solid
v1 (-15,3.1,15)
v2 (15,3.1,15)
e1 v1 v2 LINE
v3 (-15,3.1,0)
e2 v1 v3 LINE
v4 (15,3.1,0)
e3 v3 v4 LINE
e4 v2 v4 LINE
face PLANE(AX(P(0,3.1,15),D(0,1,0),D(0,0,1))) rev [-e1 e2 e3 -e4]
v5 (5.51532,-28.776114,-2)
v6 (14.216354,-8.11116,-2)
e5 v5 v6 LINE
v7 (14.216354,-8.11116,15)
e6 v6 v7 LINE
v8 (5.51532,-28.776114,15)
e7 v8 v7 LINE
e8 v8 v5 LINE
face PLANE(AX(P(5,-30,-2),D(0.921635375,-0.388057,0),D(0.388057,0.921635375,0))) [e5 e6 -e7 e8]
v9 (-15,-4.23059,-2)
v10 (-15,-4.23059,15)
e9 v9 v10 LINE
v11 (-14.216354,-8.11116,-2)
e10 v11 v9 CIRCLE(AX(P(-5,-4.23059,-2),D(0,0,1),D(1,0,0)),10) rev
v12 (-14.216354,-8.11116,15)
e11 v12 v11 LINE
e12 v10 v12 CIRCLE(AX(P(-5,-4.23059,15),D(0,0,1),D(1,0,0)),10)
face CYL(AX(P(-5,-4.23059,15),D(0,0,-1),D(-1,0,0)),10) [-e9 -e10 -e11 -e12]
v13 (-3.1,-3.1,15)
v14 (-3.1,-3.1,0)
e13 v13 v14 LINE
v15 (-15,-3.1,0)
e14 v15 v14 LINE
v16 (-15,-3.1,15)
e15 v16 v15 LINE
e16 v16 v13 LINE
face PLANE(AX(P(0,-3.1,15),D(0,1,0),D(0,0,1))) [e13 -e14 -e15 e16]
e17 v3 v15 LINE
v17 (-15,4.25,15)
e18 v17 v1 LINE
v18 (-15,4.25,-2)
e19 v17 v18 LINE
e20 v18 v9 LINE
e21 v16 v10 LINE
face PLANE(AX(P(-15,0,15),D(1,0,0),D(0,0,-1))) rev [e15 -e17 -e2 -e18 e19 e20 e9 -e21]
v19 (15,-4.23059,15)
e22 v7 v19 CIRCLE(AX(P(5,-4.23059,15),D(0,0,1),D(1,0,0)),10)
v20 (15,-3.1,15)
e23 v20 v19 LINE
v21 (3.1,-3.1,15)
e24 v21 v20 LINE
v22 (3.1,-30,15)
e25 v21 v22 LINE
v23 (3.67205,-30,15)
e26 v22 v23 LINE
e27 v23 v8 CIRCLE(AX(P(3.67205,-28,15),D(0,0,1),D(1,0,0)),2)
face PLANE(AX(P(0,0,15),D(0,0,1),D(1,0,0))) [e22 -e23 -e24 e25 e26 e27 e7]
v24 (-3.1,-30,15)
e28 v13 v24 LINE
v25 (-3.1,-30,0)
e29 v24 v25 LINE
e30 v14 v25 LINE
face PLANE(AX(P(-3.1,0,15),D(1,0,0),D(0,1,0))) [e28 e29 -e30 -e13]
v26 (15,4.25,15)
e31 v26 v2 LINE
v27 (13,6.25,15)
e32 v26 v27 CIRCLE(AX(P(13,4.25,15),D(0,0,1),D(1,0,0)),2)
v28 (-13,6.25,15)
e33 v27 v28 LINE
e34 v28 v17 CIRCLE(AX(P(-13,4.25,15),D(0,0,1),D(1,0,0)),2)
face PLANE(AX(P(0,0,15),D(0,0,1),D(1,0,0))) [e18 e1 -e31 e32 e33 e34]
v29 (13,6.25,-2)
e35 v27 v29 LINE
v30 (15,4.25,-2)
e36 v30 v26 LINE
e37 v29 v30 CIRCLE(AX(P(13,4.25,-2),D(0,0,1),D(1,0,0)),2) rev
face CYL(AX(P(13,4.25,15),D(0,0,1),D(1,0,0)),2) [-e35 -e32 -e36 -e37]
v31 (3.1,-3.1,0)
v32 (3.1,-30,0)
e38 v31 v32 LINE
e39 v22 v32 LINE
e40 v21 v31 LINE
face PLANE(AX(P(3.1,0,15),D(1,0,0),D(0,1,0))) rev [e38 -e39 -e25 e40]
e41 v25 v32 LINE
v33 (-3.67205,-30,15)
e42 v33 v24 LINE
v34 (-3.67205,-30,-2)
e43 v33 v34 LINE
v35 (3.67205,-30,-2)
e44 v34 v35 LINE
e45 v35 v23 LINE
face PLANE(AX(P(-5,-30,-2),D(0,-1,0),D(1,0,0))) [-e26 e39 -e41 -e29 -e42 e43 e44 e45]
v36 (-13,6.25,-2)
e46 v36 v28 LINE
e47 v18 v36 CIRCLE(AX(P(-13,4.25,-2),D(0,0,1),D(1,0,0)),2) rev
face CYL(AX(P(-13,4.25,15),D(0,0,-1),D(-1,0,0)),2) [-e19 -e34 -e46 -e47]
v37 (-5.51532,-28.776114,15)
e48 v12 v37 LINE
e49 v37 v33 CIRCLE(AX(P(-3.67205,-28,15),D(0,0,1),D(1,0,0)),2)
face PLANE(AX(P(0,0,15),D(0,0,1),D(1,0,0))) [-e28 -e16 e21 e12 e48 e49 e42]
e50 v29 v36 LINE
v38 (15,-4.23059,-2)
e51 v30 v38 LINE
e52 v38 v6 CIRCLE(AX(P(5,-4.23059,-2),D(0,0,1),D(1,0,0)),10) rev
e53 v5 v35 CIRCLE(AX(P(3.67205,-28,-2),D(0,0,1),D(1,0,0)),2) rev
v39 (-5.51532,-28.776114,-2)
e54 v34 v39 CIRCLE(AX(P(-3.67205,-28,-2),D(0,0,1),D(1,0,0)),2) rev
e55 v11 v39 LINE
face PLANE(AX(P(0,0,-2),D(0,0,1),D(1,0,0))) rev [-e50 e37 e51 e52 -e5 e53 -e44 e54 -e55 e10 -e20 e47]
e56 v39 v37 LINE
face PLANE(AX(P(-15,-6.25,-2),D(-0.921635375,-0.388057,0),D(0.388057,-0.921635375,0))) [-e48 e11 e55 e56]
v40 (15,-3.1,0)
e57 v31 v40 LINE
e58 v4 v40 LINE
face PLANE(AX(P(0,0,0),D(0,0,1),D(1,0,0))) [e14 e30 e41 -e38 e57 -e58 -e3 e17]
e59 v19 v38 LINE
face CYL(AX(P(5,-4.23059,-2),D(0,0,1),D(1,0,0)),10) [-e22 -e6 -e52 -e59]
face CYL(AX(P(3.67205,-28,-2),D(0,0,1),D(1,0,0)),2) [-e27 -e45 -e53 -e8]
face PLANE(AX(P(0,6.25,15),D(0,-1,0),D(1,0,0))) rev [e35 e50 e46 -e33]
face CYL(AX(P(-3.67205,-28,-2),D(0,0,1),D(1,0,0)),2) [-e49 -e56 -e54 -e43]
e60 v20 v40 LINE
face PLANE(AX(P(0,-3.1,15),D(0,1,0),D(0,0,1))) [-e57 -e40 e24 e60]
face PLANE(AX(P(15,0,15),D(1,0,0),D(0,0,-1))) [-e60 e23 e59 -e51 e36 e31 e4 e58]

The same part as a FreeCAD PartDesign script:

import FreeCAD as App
import Part
import Sketcher
Q = App.Units.Quantity


def edges_at(feature, points):
    """Names of the edges that pass closest to the given points."""
    edges = feature.Shape.Edges
    near = lambda p: min(range(len(edges)), key=lambda i: edges[i].distToShape(Part.Vertex(*p))[0])
    return sorted({f"Edge{near(p) + 1}" for p in points})


def add_polygon(sketch, points):
    """Adds a closed chain of lines whose ends are joined by coincident constraints."""
    first, n = sketch.GeometryCount, len(points)
    for a, b in zip(points, points[1:] + points[:1]):
        sketch.addGeometry(Part.LineSegment(App.Vector(*a, 0), App.Vector(*b, 0)), False)
    for i in range(n):
        sketch.addConstraint(Sketcher.Constraint("Coincident", first + i, 2, first + (i + 1) % n, 1))

doc = App.newDocument("Part")
body = doc.addObject("PartDesign::Body", "Body")

sketch1 = body.newObject("Sketcher::SketchObject", "Sketch")
sketch1.AttachmentSupport = (doc.getObject("XY_Plane"), [""])
sketch1.MapMode = "FlatFace"
add_polygon(sketch1, [(-15, 6.2), (-15, 3.1), (15, 3.1), (15, 6.2)])
sketch1.addConstraint([
    Sketcher.Constraint("Vertical", 0),
    Sketcher.Constraint("Horizontal", 1),
    Sketcher.Constraint("Vertical", 2),
    Sketcher.Constraint("Horizontal", 3),
    Sketcher.Constraint("DistanceX", 1, 1, 1, 2, Q("30 mm")),
    Sketcher.Constraint("DistanceX", 0, 2, -1, 1, Q("15 mm")),
    Sketcher.Constraint("DistanceY", 0, 2, 0, 1, Q("3.15 mm")),
    Sketcher.Constraint("DistanceY", -1, 1, 0, 2, Q("3.1 mm")),
])
pad1 = body.newObject("PartDesign::Pad", "Pad")
pad1.Profile = sketch1
pad1.Length = 15
body2 = doc.addObject("PartDesign::Body", "Body001")

sketch2 = body2.newObject("Sketcher::SketchObject", "Sketch001")
sketch2.AttachmentSupport = (doc.getObject("XY_Plane001"), [""])
sketch2.MapMode = "FlatFace"
add_polygon(sketch2, [(-15, -6.2), (-5, -30), (-3.1, -30), (-3.1, -3.1), (-15, -3.1)])
sketch2.addConstraint([
    Sketcher.Constraint("Horizontal", 1),
    Sketcher.Constraint("Vertical", 2),
    Sketcher.Constraint("Horizontal", 3),
    Sketcher.Constraint("Vertical", 4),
    Sketcher.Constraint("DistanceX", 1, 1, 1, 2, Q("1.9 mm")),
    Sketcher.Constraint("DistanceX", 3, 2, 3, 1, Q("11.9 mm")),
    Sketcher.Constraint("DistanceY", 2, 1, 2, 2, Q("26.9 mm")),
    Sketcher.Constraint("DistanceX", 0, 2, -1, 1, Q("5 mm")),
    Sketcher.Constraint("DistanceY", 0, 2, -1, 1, Q("30 mm")),
    Sketcher.Constraint("DistanceY", 4, 2, 4, 1, Q("3.15 mm")),
])
pad2 = body2.newObject("PartDesign::Pad", "Pad001")
pad2.Profile = sketch2
pad2.Length = 15
body3 = doc.addObject("PartDesign::Body", "Body002")

sketch3 = body3.newObject("Sketcher::SketchObject", "Sketch002")
sketch3.AttachmentSupport = (doc.getObject("XY_Plane002"), [""])
sketch3.MapMode = "FlatFace"
add_polygon(sketch3, [(3.1, -3.1), (3.1, -30), (5, -30), (15, -6.2), (15, -3.1)])
sketch3.addConstraint([
    Sketcher.Constraint("Vertical", 0),
    Sketcher.Constraint("Horizontal", 1),
    Sketcher.Constraint("Vertical", 3),
    Sketcher.Constraint("Horizontal", 4),
    Sketcher.Constraint("DistanceX", 1, 1, 1, 2, Q("1.9 mm")),
    Sketcher.Constraint("DistanceX", 4, 2, 4, 1, Q("11.9 mm")),
    Sketcher.Constraint("DistanceY", 0, 2, 0, 1, Q("26.9 mm")),
    Sketcher.Constraint("DistanceY", 0, 2, -1, 1, Q("30 mm")),
    Sketcher.Constraint("DistanceX", -1, 1, 1, 2, Q("5 mm")),
    Sketcher.Constraint("DistanceY", 3, 1, 3, 2, Q("3.15 mm")),
])
pad3 = body3.newObject("PartDesign::Pad", "Pad002")
pad3.Profile = sketch3
pad3.Length = 15
body.AllowCompound = True
doc.recompute()

boolean = body.newObject("PartDesign::Boolean", "Boolean")
boolean.Type = "Fuse"
boolean.addObjects([body2])
doc.recompute()

boolean2 = body.newObject("PartDesign::Boolean", "Boolean001")
boolean2.Type = "Fuse"
boolean2.addObjects([body3])

sketch4 = body.newObject("Sketcher::SketchObject", "Sketch003")
sketch4.AttachmentSupport = (doc.getObject("XY_Plane"), [""])
sketch4.MapMode = "FlatFace"
add_polygon(sketch4, [(-5, -30), (5, -30), (15, -6), (15, 6), (-15, 6), (-15, -6)])
sketch4.addConstraint([
    Sketcher.Constraint("Horizontal", 0),
    Sketcher.Constraint("Vertical", 2),
    Sketcher.Constraint("Horizontal", 3),
    Sketcher.Constraint("Vertical", 4),
    Sketcher.Constraint("Symmetric", 1, 2, 3, 2, -1, 1),
    Sketcher.Constraint("Horizontal", 1, 2, 4, 2),
    Sketcher.Constraint("Equal", 1, 5),
    Sketcher.Constraint("DistanceX", 0, 1, 0, 2, Q("10 mm")),
    Sketcher.Constraint("DistanceX", 3, 2, 3, 1, Q("30 mm")),
    Sketcher.Constraint("DistanceY", 2, 1, 2, 2, Q("12.5 mm")),
    Sketcher.Constraint("DistanceY", 0, 2, -1, 1, Q("30 mm")),
])
pad4 = body.newObject("PartDesign::Pad", "Pad003")
pad4.Profile = sketch4
pad4.Length = 2
pad4.Reversed = True
doc.recompute()

fillet = body.newObject("PartDesign::Fillet", "Fillet")
fillet.Base = (pad4, edges_at(pad4, [(15, -6.25, 6.5), (-15, -6.25, 6.5)]))
fillet.Radius = 10
doc.recompute()

fillet2 = body.newObject("PartDesign::Fillet", "Fillet001")
fillet2.Base = (fillet, edges_at(fillet, [
    (5, -30, 6.5),
    (-5, -30, 6.5),
    (-15, 6.25, 6.5),
    (15, 6.25, 6.5),
]))
fillet2.Radius = 2

doc.recompute()
